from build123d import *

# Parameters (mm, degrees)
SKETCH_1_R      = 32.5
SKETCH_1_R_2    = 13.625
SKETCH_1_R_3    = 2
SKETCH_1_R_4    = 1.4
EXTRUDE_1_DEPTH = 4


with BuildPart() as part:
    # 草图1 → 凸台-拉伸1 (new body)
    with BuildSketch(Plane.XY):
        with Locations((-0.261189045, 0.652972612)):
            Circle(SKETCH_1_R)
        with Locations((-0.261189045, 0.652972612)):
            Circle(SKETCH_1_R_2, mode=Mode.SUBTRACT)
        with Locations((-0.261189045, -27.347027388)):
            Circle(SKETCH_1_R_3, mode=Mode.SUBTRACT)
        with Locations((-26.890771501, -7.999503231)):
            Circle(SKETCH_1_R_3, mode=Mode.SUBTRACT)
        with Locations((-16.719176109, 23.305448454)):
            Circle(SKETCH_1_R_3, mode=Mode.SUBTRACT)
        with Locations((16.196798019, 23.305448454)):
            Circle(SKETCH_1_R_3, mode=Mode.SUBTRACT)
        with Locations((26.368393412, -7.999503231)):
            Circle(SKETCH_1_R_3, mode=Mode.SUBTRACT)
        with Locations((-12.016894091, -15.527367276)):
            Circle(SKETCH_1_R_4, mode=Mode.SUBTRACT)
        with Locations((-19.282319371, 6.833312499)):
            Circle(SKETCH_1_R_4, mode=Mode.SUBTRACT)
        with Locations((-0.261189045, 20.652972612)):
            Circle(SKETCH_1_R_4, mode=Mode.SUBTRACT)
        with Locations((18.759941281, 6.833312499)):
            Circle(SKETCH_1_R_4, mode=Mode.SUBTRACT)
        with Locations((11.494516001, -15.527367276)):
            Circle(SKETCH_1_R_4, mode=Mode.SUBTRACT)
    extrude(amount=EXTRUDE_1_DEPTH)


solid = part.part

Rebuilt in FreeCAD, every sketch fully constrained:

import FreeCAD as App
import Part
import Sketcher

V = App.Vector

doc = App.newDocument("Part")
body = doc.addObject("PartDesign::Body", "Body")

# Sketch on XY plane
sketch1 = doc.addObject("Sketcher::SketchObject", "Sketch")
body.addObject(sketch1)
sketch1.AttachmentSupport = (doc.XY_Plane, [""])
sketch1.MapMode = "FlatFace"
sketch1.addGeometry([
    Part.Circle(V(-0.3, 0.7, 0), V(0, 0, 1), 32.5),  # 0
    Part.Circle(V(-0.3, -27.3, 0), V(0, 0, 1), 2),  # 1
    Part.Circle(V(-26.9, -8, 0), V(0, 0, 1), 2),  # 2
    Part.Circle(V(-12, -15.5, 0), V(0, 0, 1), 1.4),  # 3
    Part.Circle(V(11.5, -15.5, 0), V(0, 0, 1), 1.4),  # 4
    Part.Circle(V(26.4, -8, 0), V(0, 0, 1), 2),  # 5
    Part.Circle(V(-19.3, 6.8, 0), V(0, 0, 1), 1.4),  # 6
    Part.Circle(V(-0.3, 0.7, 0), V(0, 0, 1), 13.6),  # 7
    Part.Circle(V(-16.7, 23.3, 0), V(0, 0, 1), 2),  # 8
    Part.Circle(V(-0.3, 20.7, 0), V(0, 0, 1), 1.4),  # 9
    Part.Circle(V(18.8, 6.8, 0), V(0, 0, 1), 1.4),  # 10
    Part.Circle(V(16.2, 23.3, 0), V(0, 0, 1), 2),  # 11
], False)
sketch1.addConstraint([
    Sketcher.Constraint("Coincident", 7, 3, 0, 3),
    Sketcher.Constraint("Equal", 1, 2),
    Sketcher.Constraint("Equal", 3, 4),
    Sketcher.Constraint("Equal", 2, 5),
    Sketcher.Constraint("Equal", 4, 6),
    Sketcher.Constraint("Equal", 5, 8),
    Sketcher.Constraint("Equal", 6, 9),
    Sketcher.Constraint("Equal", 9, 10),
    Sketcher.Constraint("Equal", 8, 11),
    Sketcher.Constraint("Horizontal", 3, 3, 4, 3),
    Sketcher.Constraint("Horizontal", 2, 3, 5, 3),
    Sketcher.Constraint("Horizontal", 6, 3, 10, 3),
    Sketcher.Constraint("Horizontal", 8, 3, 11, 3),
    Sketcher.Constraint("Vertical", 0, 3, 1, 3),
    Sketcher.Constraint("Vertical", 7, 3, 9, 3),
    Sketcher.Constraint("Diameter", 0, 65.0),
    Sketcher.Constraint("Diameter", 1, 4.0),
    Sketcher.Constraint("Diameter", 3, 2.8),
    Sketcher.Constraint("Diameter", 7, 27.25),
    Sketcher.Constraint("DistanceY", 1, 3, 0, 3, 28.0),
    Sketcher.Constraint("DistanceY", 0, 3, 9, 3, 20.0),
    Sketcher.Constraint("DistanceX", -1, 1, 11, 3, 16.196798),
    Sketcher.Constraint("DistanceX", 0, 3, -1, 1, 0.261189),
    Sketcher.Constraint("DistanceX", 2, 3, -1, 1, 26.890772),
    Sketcher.Constraint("DistanceX", 6, 3, -1, 1, 19.282319),
    Sketcher.Constraint("DistanceY", -1, 1, 8, 3, 23.305448),
    Sketcher.Constraint("DistanceX", -1, 1, 10, 3, 18.759941),
    Sketcher.Constraint("DistanceY", 1, 3, 3, 3, 11.81966),
    Sketcher.Constraint("DistanceX", 3, 3, 4, 3, 23.51141),
    Sketcher.Constraint("DistanceY", 0, 3, 6, 3, 6.18034),
    Sketcher.Constraint("DistanceY", 2, 3, 8, 3, 31.304952),
    Sketcher.Constraint("DistanceY", -1, 1, 0, 3, 0.652973),
    Sketcher.Constraint("DistanceX", 3, 3, -1, 1, 12.016894),
    Sketcher.Constraint("DistanceX", -1, 1, 5, 3, 26.368393),
    Sketcher.Constraint("DistanceX", 8, 3, -1, 1, 16.719176),
])
pad1 = doc.addObject("PartDesign::Pad", "Pad")
body.addObject(pad1)
pad1.Profile = sketch1
pad1.Length = 4

doc.recompute()
